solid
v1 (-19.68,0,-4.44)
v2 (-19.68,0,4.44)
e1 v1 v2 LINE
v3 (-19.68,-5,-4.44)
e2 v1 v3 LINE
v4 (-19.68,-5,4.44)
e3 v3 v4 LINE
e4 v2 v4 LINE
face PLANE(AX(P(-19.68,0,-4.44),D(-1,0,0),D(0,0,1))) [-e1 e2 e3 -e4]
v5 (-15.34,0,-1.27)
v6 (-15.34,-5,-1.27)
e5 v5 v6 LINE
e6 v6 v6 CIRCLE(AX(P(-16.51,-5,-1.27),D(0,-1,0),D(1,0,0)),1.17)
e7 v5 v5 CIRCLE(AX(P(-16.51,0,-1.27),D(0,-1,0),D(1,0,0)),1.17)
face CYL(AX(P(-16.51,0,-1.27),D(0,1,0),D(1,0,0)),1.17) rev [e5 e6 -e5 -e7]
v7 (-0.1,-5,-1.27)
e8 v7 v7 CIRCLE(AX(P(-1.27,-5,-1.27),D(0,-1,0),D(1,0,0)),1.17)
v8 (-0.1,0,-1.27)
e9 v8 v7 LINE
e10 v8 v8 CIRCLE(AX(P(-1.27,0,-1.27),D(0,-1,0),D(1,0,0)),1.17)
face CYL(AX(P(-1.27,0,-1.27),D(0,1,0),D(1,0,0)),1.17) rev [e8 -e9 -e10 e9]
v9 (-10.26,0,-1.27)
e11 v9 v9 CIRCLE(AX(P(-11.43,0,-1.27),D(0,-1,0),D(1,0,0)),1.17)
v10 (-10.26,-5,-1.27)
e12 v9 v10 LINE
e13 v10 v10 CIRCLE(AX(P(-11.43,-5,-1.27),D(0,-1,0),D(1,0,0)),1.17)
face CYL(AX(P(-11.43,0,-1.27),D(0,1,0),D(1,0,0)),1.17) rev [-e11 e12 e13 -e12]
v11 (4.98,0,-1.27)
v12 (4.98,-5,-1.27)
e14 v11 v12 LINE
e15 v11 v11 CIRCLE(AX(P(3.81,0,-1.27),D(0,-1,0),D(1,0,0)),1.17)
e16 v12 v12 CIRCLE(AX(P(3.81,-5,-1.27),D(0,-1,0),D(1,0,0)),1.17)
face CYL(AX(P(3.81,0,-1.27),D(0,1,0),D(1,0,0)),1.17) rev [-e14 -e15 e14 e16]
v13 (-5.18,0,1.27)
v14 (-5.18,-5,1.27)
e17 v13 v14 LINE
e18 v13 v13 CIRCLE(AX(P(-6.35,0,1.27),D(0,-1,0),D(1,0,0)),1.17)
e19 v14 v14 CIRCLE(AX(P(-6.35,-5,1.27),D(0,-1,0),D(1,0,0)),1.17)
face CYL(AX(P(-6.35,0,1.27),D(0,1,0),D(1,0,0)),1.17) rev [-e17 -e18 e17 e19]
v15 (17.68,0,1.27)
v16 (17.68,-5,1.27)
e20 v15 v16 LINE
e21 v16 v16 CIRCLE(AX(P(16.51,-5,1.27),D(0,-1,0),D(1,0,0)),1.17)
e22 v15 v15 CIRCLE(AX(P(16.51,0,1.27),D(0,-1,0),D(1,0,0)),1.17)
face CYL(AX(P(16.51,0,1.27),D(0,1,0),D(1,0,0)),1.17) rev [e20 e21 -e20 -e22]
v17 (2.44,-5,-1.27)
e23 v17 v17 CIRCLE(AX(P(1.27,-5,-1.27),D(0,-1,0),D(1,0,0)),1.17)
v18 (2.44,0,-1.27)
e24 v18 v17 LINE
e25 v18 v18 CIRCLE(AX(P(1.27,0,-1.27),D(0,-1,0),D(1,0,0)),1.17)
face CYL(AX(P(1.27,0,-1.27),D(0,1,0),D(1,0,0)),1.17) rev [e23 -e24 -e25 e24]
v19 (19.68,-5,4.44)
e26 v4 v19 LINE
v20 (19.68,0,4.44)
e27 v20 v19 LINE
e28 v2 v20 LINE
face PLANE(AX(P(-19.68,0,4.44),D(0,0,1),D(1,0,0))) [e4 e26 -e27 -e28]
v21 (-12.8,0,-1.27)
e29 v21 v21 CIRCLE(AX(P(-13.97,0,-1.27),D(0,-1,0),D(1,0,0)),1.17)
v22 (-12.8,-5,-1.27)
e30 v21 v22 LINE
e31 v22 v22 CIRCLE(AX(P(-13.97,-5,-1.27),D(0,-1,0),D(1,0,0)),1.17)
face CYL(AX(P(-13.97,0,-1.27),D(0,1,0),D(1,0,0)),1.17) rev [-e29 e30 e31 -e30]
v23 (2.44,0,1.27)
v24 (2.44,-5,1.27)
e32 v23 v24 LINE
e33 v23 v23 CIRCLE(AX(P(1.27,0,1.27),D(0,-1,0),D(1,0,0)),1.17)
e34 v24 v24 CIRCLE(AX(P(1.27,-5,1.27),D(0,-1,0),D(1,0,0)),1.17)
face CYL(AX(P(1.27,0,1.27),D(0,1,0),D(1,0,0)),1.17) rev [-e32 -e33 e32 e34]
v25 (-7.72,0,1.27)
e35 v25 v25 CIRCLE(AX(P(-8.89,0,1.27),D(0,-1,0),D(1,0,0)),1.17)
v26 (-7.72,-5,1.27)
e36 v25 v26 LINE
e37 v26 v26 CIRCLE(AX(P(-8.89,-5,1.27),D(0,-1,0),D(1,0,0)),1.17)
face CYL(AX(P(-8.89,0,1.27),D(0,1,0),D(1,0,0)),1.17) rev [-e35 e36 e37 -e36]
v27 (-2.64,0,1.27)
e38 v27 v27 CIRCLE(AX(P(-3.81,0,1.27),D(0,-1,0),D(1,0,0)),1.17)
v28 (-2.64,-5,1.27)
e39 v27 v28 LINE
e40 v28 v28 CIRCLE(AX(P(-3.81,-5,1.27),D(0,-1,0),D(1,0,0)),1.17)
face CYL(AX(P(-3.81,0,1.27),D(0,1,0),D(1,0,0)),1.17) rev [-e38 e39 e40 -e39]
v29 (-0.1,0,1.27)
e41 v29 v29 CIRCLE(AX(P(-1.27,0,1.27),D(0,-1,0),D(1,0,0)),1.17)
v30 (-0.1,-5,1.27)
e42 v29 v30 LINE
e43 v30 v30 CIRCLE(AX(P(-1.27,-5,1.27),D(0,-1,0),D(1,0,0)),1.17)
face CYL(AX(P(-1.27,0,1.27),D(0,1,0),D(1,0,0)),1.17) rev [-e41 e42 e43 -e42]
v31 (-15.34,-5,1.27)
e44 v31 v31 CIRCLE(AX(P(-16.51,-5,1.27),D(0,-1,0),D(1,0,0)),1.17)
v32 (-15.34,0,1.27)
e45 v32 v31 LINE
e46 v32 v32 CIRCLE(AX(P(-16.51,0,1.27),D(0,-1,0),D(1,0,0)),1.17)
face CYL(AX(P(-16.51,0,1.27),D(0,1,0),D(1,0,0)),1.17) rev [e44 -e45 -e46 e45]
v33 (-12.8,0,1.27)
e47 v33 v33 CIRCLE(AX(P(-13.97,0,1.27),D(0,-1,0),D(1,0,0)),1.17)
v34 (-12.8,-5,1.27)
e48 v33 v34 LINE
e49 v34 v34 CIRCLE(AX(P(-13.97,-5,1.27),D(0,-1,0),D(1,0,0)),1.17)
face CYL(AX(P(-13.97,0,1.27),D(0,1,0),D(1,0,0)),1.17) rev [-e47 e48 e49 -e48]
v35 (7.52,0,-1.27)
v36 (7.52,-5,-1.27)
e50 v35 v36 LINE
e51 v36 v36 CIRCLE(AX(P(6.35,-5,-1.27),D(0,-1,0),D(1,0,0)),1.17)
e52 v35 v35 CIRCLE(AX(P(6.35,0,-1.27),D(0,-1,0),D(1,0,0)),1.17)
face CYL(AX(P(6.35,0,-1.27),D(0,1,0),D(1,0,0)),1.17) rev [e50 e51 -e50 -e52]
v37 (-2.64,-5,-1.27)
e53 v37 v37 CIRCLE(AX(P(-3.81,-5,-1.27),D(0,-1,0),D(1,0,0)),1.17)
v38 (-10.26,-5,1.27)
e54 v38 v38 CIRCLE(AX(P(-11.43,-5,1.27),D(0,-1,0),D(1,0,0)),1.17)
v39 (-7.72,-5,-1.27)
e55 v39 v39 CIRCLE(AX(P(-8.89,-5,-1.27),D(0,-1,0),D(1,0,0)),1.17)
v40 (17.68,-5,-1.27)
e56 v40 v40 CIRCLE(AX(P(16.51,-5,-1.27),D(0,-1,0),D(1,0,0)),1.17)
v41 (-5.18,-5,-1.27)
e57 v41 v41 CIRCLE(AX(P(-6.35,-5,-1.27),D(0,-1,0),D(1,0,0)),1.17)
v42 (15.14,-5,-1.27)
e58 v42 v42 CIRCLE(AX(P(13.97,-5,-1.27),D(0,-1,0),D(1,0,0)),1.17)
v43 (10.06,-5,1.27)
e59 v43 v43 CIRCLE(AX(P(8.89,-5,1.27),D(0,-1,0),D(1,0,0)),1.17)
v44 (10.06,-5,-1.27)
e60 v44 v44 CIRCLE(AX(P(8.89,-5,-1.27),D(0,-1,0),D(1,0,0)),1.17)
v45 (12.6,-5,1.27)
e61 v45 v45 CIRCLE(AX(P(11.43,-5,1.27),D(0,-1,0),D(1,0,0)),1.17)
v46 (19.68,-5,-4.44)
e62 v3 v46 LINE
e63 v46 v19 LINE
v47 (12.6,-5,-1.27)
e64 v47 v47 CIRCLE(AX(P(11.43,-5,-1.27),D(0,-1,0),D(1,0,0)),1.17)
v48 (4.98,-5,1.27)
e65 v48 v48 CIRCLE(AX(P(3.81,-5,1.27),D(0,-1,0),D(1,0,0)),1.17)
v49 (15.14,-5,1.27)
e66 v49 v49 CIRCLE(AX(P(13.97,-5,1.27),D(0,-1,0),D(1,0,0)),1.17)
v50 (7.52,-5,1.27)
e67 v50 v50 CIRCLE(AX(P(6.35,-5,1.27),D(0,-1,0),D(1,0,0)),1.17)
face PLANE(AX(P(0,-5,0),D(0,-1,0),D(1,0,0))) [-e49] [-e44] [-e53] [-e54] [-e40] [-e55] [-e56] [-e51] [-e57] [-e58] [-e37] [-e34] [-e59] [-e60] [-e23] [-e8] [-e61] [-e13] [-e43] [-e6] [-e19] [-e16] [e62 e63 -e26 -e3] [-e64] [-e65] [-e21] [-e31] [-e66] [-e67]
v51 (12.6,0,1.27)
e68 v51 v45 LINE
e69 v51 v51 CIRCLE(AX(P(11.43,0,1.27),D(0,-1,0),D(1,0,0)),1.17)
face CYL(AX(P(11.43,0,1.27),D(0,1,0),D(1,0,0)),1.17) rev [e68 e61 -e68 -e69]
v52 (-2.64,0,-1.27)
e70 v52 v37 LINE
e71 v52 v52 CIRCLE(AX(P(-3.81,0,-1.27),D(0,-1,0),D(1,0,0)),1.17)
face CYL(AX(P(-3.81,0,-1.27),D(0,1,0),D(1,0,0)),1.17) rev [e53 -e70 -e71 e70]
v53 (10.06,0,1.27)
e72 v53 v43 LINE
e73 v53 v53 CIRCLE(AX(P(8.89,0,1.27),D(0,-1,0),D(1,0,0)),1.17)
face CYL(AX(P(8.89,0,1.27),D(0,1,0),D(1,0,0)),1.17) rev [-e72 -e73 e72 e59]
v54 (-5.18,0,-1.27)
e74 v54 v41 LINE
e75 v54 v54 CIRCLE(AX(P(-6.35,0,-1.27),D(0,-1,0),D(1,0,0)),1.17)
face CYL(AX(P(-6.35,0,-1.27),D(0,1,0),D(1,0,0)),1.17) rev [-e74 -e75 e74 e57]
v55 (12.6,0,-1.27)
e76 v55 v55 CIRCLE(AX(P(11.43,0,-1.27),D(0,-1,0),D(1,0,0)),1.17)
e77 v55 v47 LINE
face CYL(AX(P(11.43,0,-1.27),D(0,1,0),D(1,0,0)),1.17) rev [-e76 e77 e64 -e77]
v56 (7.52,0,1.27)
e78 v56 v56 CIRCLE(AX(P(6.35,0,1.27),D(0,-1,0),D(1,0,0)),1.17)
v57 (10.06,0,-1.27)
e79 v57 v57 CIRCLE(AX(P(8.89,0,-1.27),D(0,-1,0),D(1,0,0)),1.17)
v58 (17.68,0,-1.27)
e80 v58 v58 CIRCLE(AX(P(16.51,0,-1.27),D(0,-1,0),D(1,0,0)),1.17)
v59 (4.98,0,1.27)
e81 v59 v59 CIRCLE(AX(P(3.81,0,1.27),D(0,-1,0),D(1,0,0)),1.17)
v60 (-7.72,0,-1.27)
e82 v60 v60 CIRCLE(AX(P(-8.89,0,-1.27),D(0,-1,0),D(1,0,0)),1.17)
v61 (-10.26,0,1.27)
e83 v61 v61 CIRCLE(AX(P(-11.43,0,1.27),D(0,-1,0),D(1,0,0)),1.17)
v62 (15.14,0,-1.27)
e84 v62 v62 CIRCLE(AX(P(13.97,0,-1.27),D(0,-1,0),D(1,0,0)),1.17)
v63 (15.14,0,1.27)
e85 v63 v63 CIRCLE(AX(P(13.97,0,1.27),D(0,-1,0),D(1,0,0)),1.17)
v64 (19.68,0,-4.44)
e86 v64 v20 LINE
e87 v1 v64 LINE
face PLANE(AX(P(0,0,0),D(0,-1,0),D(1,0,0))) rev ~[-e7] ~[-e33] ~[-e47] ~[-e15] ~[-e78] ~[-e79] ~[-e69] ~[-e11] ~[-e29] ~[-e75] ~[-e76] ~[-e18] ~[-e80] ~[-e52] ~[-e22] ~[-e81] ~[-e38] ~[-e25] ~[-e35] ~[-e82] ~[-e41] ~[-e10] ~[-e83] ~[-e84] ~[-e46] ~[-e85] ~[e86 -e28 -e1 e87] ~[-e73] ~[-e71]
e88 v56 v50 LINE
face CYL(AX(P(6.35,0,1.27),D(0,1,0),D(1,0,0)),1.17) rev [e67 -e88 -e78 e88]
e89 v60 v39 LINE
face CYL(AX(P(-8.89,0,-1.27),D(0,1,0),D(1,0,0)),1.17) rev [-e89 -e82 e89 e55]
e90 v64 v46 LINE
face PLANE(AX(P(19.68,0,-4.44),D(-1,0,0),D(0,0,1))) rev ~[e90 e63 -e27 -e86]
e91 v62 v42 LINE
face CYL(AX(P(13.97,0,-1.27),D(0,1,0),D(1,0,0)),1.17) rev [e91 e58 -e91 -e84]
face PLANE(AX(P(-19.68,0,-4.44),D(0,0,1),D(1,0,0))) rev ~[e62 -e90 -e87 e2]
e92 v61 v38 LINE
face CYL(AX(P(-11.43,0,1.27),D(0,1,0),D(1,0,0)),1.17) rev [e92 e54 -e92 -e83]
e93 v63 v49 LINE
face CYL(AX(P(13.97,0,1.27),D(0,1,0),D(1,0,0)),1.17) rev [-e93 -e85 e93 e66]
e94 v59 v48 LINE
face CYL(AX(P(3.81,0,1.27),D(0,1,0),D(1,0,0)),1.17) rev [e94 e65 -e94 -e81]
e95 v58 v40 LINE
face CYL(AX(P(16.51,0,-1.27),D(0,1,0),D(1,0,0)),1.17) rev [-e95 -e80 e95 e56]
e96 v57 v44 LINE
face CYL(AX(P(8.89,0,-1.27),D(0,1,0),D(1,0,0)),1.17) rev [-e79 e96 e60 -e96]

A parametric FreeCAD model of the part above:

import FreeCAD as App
import Part
import Sketcher
Q = App.Units.Quantity


def add_polygon(sketch, points):
    """Adds a closed chain of lines whose ends are joined by coincident constraints."""
    first, n = sketch.GeometryCount, len(points)
    for a, b in zip(points, points[1:] + points[:1]):
        sketch.addGeometry(Part.LineSegment(App.Vector(*a, 0), App.Vector(*b, 0)), False)
    for i in range(n):
        sketch.addConstraint(Sketcher.Constraint("Coincident", first + i, 2, first + (i + 1) % n, 1))

doc = App.newDocument("Part")
params = doc.addObject("Spreadsheet::Sheet", "Params")
for row, (alias, value) in enumerate([
    ("sketch1_diameter", "2.34 mm"),
    ("sketch1_width", "39.36 mm"),
    ("sketch1_height", "8.88 mm"),
    ("pad1_length", "5 mm"),
], start=1):
    params.set(f"A{row}", alias)
    params.set(f"B{row}", "=" + value)
    params.setAlias(f"B{row}", alias)

body = doc.addObject("PartDesign::Body", "Body")

# Sketch on XZ plane
sketch1 = body.newObject("Sketcher::SketchObject", "Sketch")
sketch1.AttachmentSupport = (doc.getObject("XZ_Plane"), [""])
sketch1.MapMode = "FlatFace"
add_polygon(sketch1, [(-19.68, 4.44), (-19.68, -4.44), (19.68, -4.44), (19.68, 4.44)])  # lines 0-3
sketch1.addGeometry(Part.Circle(App.Vector(-16.51, -1.27, 0), App.Vector(0, 0, 1), 1.17), False)  # 4
sketch1.addGeometry(Part.Circle(App.Vector(-13.97, -1.27, 0), App.Vector(0, 0, 1), 1.17), False)  # 5
sketch1.addGeometry(Part.Circle(App.Vector(-11.43, -1.27, 0), App.Vector(0, 0, 1), 1.17), False)  # 6
sketch1.addGeometry(Part.Circle(App.Vector(-8.89, -1.27, 0), App.Vector(0, 0, 1), 1.17), False)  # 7
sketch1.addGeometry(Part.Circle(App.Vector(-6.35, -1.27, 0), App.Vector(0, 0, 1), 1.17), False)  # 8
sketch1.addGeometry(Part.Circle(App.Vector(-3.81, -1.27, 0), App.Vector(0, 0, 1), 1.17), False)  # 9
sketch1.addGeometry(Part.Circle(App.Vector(-1.27, -1.27, 0), App.Vector(0, 0, 1), 1.17), False)  # 10
sketch1.addGeometry(Part.Circle(App.Vector(1.27, -1.27, 0), App.Vector(0, 0, 1), 1.17), False)  # 11
sketch1.addGeometry(Part.Circle(App.Vector(3.81, -1.27, 0), App.Vector(0, 0, 1), 1.17), False)  # 12
sketch1.addGeometry(Part.Circle(App.Vector(6.35, -1.27, 0), App.Vector(0, 0, 1), 1.17), False)  # 13
sketch1.addGeometry(Part.Circle(App.Vector(8.89, -1.27, 0), App.Vector(0, 0, 1), 1.17), False)  # 14
sketch1.addGeometry(Part.Circle(App.Vector(11.43, -1.27, 0), App.Vector(0, 0, 1), 1.17), False)  # 15
sketch1.addGeometry(Part.Circle(App.Vector(13.97, -1.27, 0), App.Vector(0, 0, 1), 1.17), False)  # 16
sketch1.addGeometry(Part.Circle(App.Vector(16.51, -1.27, 0), App.Vector(0, 0, 1), 1.17), False)  # 17
sketch1.addGeometry(Part.Circle(App.Vector(-16.51, 1.27, 0), App.Vector(0, 0, 1), 1.17), False)  # 18
sketch1.addGeometry(Part.Circle(App.Vector(-13.97, 1.27, 0), App.Vector(0, 0, 1), 1.17), False)  # 19
sketch1.addGeometry(Part.Circle(App.Vector(-11.43, 1.27, 0), App.Vector(0, 0, 1), 1.17), False)  # 20
sketch1.addGeometry(Part.Circle(App.Vector(-8.89, 1.27, 0), App.Vector(0, 0, 1), 1.17), False)  # 21
sketch1.addGeometry(Part.Circle(App.Vector(-6.35, 1.27, 0), App.Vector(0, 0, 1), 1.17), False)  # 22
sketch1.addGeometry(Part.Circle(App.Vector(-3.81, 1.27, 0), App.Vector(0, 0, 1), 1.17), False)  # 23
sketch1.addGeometry(Part.Circle(App.Vector(-1.27, 1.27, 0), App.Vector(0, 0, 1), 1.17), False)  # 24
sketch1.addGeometry(Part.Circle(App.Vector(1.27, 1.27, 0), App.Vector(0, 0, 1), 1.17), False)  # 25
sketch1.addGeometry(Part.Circle(App.Vector(3.81, 1.27, 0), App.Vector(0, 0, 1), 1.17), False)  # 26
sketch1.addGeometry(Part.Circle(App.Vector(6.35, 1.27, 0), App.Vector(0, 0, 1), 1.17), False)  # 27
sketch1.addGeometry(Part.Circle(App.Vector(8.89, 1.27, 0), App.Vector(0, 0, 1), 1.17), False)  # 28
sketch1.addGeometry(Part.Circle(App.Vector(11.43, 1.27, 0), App.Vector(0, 0, 1), 1.17), False)  # 29
sketch1.addGeometry(Part.Circle(App.Vector(13.97, 1.27, 0), App.Vector(0, 0, 1), 1.17), False)  # 30
sketch1.addGeometry(Part.Circle(App.Vector(16.51, 1.27, 0), App.Vector(0, 0, 1), 1.17), False)  # 31
sketch1.addConstraint([
    Sketcher.Constraint("Vertical", 0),
    Sketcher.Constraint("Horizontal", 1),
    Sketcher.Constraint("Vertical", 2),
    Sketcher.Constraint("Horizontal", 3),
    Sketcher.Constraint("Equal", 4, 5),
    Sketcher.Constraint("Equal", 5, 6),
    Sketcher.Constraint("Equal", 6, 7),
    Sketcher.Constraint("Equal", 7, 8),
    Sketcher.Constraint("Equal", 8, 9),
    Sketcher.Constraint("Equal", 9, 10),
    Sketcher.Constraint("Equal", 10, 11),
    Sketcher.Constraint("Equal", 11, 12),
    Sketcher.Constraint("Equal", 12, 13),
    Sketcher.Constraint("Equal", 13, 14),
    Sketcher.Constraint("Equal", 14, 15),
    Sketcher.Constraint("Equal", 15, 16),
    Sketcher.Constraint("Equal", 16, 17),
    Sketcher.Constraint("Equal", 17, 18),
    Sketcher.Constraint("Equal", 18, 19),
    Sketcher.Constraint("Equal", 19, 20),
    Sketcher.Constraint("Equal", 20, 21),
    Sketcher.Constraint("Equal", 21, 22),
    Sketcher.Constraint("Equal", 22, 23),
    Sketcher.Constraint("Equal", 23, 24),
    Sketcher.Constraint("Equal", 24, 25),
    Sketcher.Constraint("Equal", 25, 26),
    Sketcher.Constraint("Equal", 26, 27),
    Sketcher.Constraint("Equal", 27, 28),
    Sketcher.Constraint("Equal", 28, 29),
    Sketcher.Constraint("Equal", 29, 30),
    Sketcher.Constraint("Equal", 30, 31),
    Sketcher.Constraint("Symmetric", 17, 3, 18, 3, -1, 1),
    Sketcher.Constraint("Symmetric", 16, 3, 19, 3, -1, 1),
    Sketcher.Constraint("Symmetric", 15, 3, 20, 3, -1, 1),
    Sketcher.Constraint("Symmetric", 14, 3, 21, 3, -1, 1),
    Sketcher.Constraint("Symmetric", 13, 3, 22, 3, -1, 1),
    Sketcher.Constraint("Symmetric", 12, 3, 23, 3, -1, 1),
    Sketcher.Constraint("Symmetric", 11, 3, 24, 3, -1, 1),
    Sketcher.Constraint("Symmetric", 10, 3, 25, 3, -1, 1),
    Sketcher.Constraint("Symmetric", 9, 3, 26, 3, -1, 1),
    Sketcher.Constraint("Symmetric", 8, 3, 27, 3, -1, 1),
    Sketcher.Constraint("Symmetric", 7, 3, 28, 3, -1, 1),
    Sketcher.Constraint("Symmetric", 6, 3, 29, 3, -1, 1),
    Sketcher.Constraint("Symmetric", 5, 3, 30, 3, -1, 1),
    Sketcher.Constraint("Symmetric", 4, 3, 31, 3, -1, 1),
    Sketcher.Constraint("Symmetric", 0, 2, 2, 2, -1, 1),
    Sketcher.Constraint("Symmetric", 10, 3, 11, 3, -2),
    Sketcher.Constraint("Symmetric", 9, 3, 12, 3, -2),
    Sketcher.Constraint("Symmetric", 8, 3, 13, 3, -2),
    Sketcher.Constraint("Symmetric", 7, 3, 14, 3, -2),
    Sketcher.Constraint("Symmetric", 6, 3, 15, 3, -2),
    Sketcher.Constraint("Symmetric", 5, 3, 16, 3, -2),
    Sketcher.Constraint("Symmetric", 4, 3, 17, 3, -2),
    Sketcher.Constraint("Horizontal", 4, 3, 5, 3),
    Sketcher.Constraint("Horizontal", 5, 3, 6, 3),
    Sketcher.Constraint("Horizontal", 6, 3, 7, 3),
    Sketcher.Constraint("Horizontal", 7, 3, 8, 3),
    Sketcher.Constraint("Horizontal", 8, 3, 9, 3),
    Sketcher.Constraint("Horizontal", 9, 3, 10, 3),
    Sketcher.Constraint("Diameter", 4, Q("2.34 mm")),
    Sketcher.Constraint("DistanceX", 1, 1, 1, 2, Q("39.36 mm")),
    Sketcher.Constraint("DistanceY", 0, 2, 0, 1, Q("8.88 mm")),
    Sketcher.Constraint("DistanceX", 4, 3, 9, 3, Q("12.7 mm")),
    Sketcher.Constraint("DistanceX", 5, 3, 10, 3, Q("12.7 mm")),
    Sketcher.Constraint("DistanceX", 6, 3, 11, 3, Q("12.7 mm")),
    Sketcher.Constraint("DistanceX", 7, 3, 12, 3, Q("12.7 mm")),
    Sketcher.Constraint("DistanceX", 8, 3, 13, 3, Q("12.7 mm")),
    Sketcher.Constraint("DistanceX", 4, 3, -1, 1, Q("16.51 mm")),
    Sketcher.Constraint("DistanceY", 4, 3, -1, 1, Q("1.27 mm")),
    Sketcher.Constraint("DistanceX", 5, 3, -1, 1, Q("13.97 mm")),
])
sketch1.setExpression("Constraints[63]", "Params.sketch1_diameter")
sketch1.setExpression("Constraints[64]", "Params.sketch1_width")
sketch1.setExpression("Constraints[65]", "Params.sketch1_height")
pad1 = body.newObject("PartDesign::Pad", "Pad")
pad1.Profile = sketch1
pad1.setExpression("Length", "Params.pad1_length")

doc.recompute()
